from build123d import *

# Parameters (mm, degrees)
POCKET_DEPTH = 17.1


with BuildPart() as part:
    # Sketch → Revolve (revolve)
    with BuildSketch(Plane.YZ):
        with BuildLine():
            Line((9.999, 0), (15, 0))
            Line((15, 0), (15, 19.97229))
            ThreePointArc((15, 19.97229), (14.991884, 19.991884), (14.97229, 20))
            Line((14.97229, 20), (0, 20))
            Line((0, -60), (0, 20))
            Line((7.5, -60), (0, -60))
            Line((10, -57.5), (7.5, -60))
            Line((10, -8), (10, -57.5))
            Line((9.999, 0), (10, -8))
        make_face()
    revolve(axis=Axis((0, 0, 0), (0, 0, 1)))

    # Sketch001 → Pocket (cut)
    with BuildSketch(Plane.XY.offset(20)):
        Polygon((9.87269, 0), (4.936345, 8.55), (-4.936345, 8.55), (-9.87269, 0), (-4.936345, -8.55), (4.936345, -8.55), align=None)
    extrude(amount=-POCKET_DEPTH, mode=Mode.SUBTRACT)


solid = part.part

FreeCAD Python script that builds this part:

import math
import FreeCAD as App
import Part
import Sketcher
Q = App.Units.Quantity


def add_polygon(sketch, points):
    """Adds a closed chain of lines whose ends are joined by coincident constraints."""
    first, n = sketch.GeometryCount, len(points)
    for a, b in zip(points, points[1:] + points[:1]):
        sketch.addGeometry(Part.LineSegment(App.Vector(*a, 0), App.Vector(*b, 0)), False)
    for i in range(n):
        sketch.addConstraint(Sketcher.Constraint("Coincident", first + i, 2, first + (i + 1) % n, 1))

doc = App.newDocument("Part")
body = doc.addObject("PartDesign::Body", "Body")

sketch1 = doc.addObject("Sketcher::SketchObject", "Sketch")
body.addObject(sketch1)
sketch1.AttachmentSupport = (doc.YZ_Plane, [""])
sketch1.MapMode = "FlatFace"
sketch1.addGeometry([
    Part.LineSegment(App.Vector(9.999, 0, 0), App.Vector(15, 0, 0)),
    Part.LineSegment(App.Vector(15, 0, 0), App.Vector(15, 19.972, 0)),
    Part.ArcOfCircle(Part.Circle(App.Vector(14.972, 19.972, 0), App.Vector(0, 0, 1), 0.028), math.radians(0), math.radians(90)),
    Part.LineSegment(App.Vector(14.972, 20, 0), App.Vector(0, 20, 0)),
    Part.LineSegment(App.Vector(0, 20, 0), App.Vector(0, -60, 0)),
    Part.LineSegment(App.Vector(0, -60, 0), App.Vector(7.5, -60, 0)),
    Part.LineSegment(App.Vector(7.5, -60, 0), App.Vector(10, -57.5, 0)),
    Part.LineSegment(App.Vector(10, -57.5, 0), App.Vector(10, -8, 0)),
    Part.LineSegment(App.Vector(10, -8, 0), App.Vector(9.999, 0, 0)),
], False)
sketch1.addConstraint([
    Sketcher.Constraint("Coincident", 0, 2, 1, 1),
    Sketcher.Constraint("Coincident", 1, 2, 2, 1),
    Sketcher.Constraint("Coincident", 2, 2, 3, 1),
    Sketcher.Constraint("Coincident", 3, 2, 4, 1),
    Sketcher.Constraint("Coincident", 4, 2, 5, 1),
    Sketcher.Constraint("Coincident", 5, 2, 6, 1),
    Sketcher.Constraint("Coincident", 6, 2, 7, 1),
    Sketcher.Constraint("Coincident", 7, 2, 8, 1),
    Sketcher.Constraint("Coincident", 8, 2, 0, 1),
    Sketcher.Constraint("Horizontal", 0),
    Sketcher.Constraint("Vertical", 1),
    Sketcher.Constraint("Horizontal", 3),
    Sketcher.Constraint("Vertical", 4),
    Sketcher.Constraint("Horizontal", 5),
    Sketcher.Constraint("Vertical", 7),
    Sketcher.Constraint("PointOnObject", 0, 2, -1),
    Sketcher.Constraint("PointOnObject", 3, 2, -2),
    Sketcher.Constraint("Horizontal", 2, 3, 1, 2),
    Sketcher.Constraint("DistanceY", 4, 2, 4, 1, Q("80 mm")),
    Sketcher.Constraint("Angle", 6, Q("45 deg")),
    Sketcher.Constraint("Distance", 8, Q("8 mm")),
    Sketcher.Constraint("DistanceX", 5, 1, 5, 2, Q("7.5 mm")),
    Sketcher.Constraint("DistanceY", 7, 1, 7, 2, Q("49.5 mm")),
    Sketcher.Constraint("DistanceX", -1, 1, 0, 2, Q("15 mm")),
    Sketcher.Constraint("DistanceY", -1, 1, 2, 2, Q("20 mm")),
    Sketcher.Constraint("DistanceX", 0, 1, 0, 2, Q("5.001 mm")),
    Sketcher.Constraint("Radius", 2, Q("0.02771 mm")),
    Sketcher.Constraint("DistanceX", 3, 2, 3, 1, Q("14.97229 mm")),
])
revolution = doc.addObject("PartDesign::Revolution", "Revolution")
body.addObject(revolution)
revolution.Profile = sketch1
revolution.ReferenceAxis = (sketch1, ["V_Axis"])
revolution.Angle = 360

sketch2 = doc.addObject("Sketcher::SketchObject", "Sketch001")
body.addObject(sketch2)
sketch2.AttachmentSupport = (doc.XY_Plane, [""])
sketch2.MapMode = "FlatFace"
sketch2.AttachmentOffset = App.Placement(App.Vector(0, 0, 20), App.Rotation())
add_polygon(sketch2, [(10, 0), (5, 9), (-5, 9), (-10, 0), (-5, -9), (5, -9)])
sketch2.addConstraint([
    Sketcher.Constraint("Horizontal", 1),
    Sketcher.Constraint("Horizontal", 4),
    Sketcher.Constraint("Symmetric", 0, 2, 3, 2, -1, 1),
    Sketcher.Constraint("Symmetric", 2, 2, 5, 2, -1, 1),
    Sketcher.Constraint("PointOnObject", 2, 2, -1),
    Sketcher.Constraint("Parallel", 2, 5),
    Sketcher.Constraint("Vertical", 1, 2, 3, 2),
    Sketcher.Constraint("Angle", 0, Q("120.000001 deg")),
    Sketcher.Constraint("DistanceY", 3, 2, 1, 2, Q("17.1 mm")),
    Sketcher.Constraint("DistanceX", 1, 2, 1, 1, Q("9.87269 mm")),
])
pocket1 = doc.addObject("PartDesign::Pocket", "Pocket")
body.addObject(pocket1)
pocket1.Profile = sketch2
pocket1.Length = 17.1

doc.recompute()
